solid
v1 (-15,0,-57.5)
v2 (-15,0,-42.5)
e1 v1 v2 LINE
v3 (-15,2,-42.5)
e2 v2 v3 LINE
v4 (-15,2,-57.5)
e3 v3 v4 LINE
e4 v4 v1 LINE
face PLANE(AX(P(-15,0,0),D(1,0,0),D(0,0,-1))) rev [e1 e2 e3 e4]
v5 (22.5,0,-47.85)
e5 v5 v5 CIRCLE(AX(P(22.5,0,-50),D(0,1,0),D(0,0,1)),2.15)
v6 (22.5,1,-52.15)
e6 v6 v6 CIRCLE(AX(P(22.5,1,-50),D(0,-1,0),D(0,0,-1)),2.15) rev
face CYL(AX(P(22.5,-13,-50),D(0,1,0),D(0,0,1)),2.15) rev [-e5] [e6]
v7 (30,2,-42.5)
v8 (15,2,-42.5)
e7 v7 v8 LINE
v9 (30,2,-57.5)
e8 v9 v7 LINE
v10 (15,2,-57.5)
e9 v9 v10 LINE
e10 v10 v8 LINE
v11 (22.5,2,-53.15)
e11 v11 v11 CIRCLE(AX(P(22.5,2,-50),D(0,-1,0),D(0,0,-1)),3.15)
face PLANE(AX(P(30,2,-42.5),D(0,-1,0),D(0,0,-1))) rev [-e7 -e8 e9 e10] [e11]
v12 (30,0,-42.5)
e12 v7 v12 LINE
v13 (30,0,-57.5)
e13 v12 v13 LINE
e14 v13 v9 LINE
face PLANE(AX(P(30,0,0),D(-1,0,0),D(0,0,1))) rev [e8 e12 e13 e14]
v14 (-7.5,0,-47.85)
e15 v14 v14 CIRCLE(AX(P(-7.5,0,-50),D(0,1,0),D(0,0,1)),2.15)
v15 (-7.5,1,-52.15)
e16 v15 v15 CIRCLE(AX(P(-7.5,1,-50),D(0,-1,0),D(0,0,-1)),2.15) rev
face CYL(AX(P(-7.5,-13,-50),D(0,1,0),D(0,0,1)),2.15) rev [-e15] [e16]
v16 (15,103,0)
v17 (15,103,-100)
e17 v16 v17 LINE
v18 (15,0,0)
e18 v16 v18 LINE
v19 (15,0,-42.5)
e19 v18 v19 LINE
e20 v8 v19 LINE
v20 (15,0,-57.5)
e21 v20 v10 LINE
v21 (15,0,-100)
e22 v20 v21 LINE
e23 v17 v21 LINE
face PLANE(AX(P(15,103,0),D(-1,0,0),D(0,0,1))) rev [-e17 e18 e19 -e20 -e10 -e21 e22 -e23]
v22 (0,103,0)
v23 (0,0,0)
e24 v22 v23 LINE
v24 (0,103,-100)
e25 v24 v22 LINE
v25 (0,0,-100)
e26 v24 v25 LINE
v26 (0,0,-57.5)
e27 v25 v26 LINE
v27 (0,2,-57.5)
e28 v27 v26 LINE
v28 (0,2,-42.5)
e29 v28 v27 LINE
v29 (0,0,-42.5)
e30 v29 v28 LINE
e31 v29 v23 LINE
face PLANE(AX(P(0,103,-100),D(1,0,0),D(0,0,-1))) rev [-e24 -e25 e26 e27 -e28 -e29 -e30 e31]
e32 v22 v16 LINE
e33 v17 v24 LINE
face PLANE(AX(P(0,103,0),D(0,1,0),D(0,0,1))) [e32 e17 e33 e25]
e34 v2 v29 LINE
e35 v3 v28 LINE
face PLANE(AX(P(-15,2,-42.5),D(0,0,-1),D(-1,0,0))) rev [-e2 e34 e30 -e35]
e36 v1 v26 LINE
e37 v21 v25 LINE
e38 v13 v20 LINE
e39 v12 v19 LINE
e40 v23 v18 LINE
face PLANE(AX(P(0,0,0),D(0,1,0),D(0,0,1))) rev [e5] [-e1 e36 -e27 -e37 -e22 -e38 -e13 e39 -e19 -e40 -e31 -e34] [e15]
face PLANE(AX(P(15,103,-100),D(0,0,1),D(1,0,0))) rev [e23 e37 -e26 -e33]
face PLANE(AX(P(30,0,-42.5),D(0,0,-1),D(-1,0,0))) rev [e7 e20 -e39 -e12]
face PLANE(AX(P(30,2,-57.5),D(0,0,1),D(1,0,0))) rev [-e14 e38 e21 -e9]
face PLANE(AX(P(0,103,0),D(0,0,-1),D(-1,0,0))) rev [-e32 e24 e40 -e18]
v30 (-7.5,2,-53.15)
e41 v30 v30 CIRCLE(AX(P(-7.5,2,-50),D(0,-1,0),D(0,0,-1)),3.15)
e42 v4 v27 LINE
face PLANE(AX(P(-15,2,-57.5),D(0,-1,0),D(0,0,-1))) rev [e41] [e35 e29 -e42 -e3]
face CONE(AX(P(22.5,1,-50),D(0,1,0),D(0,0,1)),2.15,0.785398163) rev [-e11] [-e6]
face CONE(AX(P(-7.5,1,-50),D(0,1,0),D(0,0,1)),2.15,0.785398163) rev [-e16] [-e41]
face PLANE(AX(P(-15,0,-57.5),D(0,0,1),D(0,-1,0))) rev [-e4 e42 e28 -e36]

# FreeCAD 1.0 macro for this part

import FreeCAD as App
import Part
import Sketcher
from FreeCAD import Vector
Q = App.Units.Quantity


def edges_at(feature, points):
    """Names of the edges that pass closest to the given points."""
    edges = feature.Shape.Edges
    near = lambda p: min(range(len(edges)), key=lambda i: edges[i].distToShape(Part.Vertex(*p))[0])
    return sorted({f"Edge{near(p) + 1}" for p in points})

doc = App.newDocument("Part")
body = doc.addObject("PartDesign::Body", "Body")

# Sketch on XZ plane
sketch1 = doc.addObject("Sketcher::SketchObject", "Sketch")
body.addObject(sketch1)
sketch1.AttachmentSupport = (doc.XZ_Plane, [""])
sketch1.MapMode = "FlatFace"
sketch1.addGeometry([
    Part.LineSegment(Vector(0, -100, 0), Vector(0, 0, 0)),
    Part.LineSegment(Vector(0, 0, 0), Vector(15, 0, 0)),
    Part.LineSegment(Vector(15, 0, 0), Vector(15, -100, 0)),
    Part.LineSegment(Vector(15, -100, 0), Vector(0, -100, 0)),
], False)
sketch1.addConstraint([
    Sketcher.Constraint("Coincident", 0, 2, 1, 1),
    Sketcher.Constraint("Coincident", 1, 2, 2, 1),
    Sketcher.Constraint("Coincident", 2, 2, 3, 1),
    Sketcher.Constraint("Coincident", 3, 2, 0, 1),
    Sketcher.Constraint("Vertical", 0),
    Sketcher.Constraint("Horizontal", 1),
    Sketcher.Constraint("Vertical", 2),
    Sketcher.Constraint("Horizontal", 3),
    Sketcher.Constraint("Coincident", 0, 2, -1, 1),
    Sketcher.Constraint("DistanceX", 1, 1, 1, 2, Q("15 mm")),
    Sketcher.Constraint("DistanceY", 0, 1, 0, 2, Q("100 mm")),
])
pad1 = doc.addObject("PartDesign::Pad", "Pad")
body.addObject(pad1)
pad1.Profile = sketch1
pad1.Length = 103
pad1.Reversed = True

# Sketch on YZ plane
sketch2 = doc.addObject("Sketcher::SketchObject", "Sketch001")
body.addObject(sketch2)
sketch2.AttachmentSupport = (doc.YZ_Plane, [""])
sketch2.MapMode = "FlatFace"
sketch2.addGeometry([
    Part.LineSegment(Vector(2, -57.5, 0), Vector(0, -57.5, 0)),
    Part.LineSegment(Vector(0, -57.5, 0), Vector(0, -42.5, 0)),
    Part.LineSegment(Vector(0, -42.5, 0), Vector(2, -42.5, 0)),
    Part.LineSegment(Vector(2, -42.5, 0), Vector(2, -57.5, 0)),
], False)
sketch2.addConstraint([
    Sketcher.Constraint("Coincident", 0, 2, 1, 1),
    Sketcher.Constraint("Coincident", 1, 2, 2, 1),
    Sketcher.Constraint("Coincident", 2, 2, 3, 1),
    Sketcher.Constraint("Coincident", 3, 2, 0, 1),
    Sketcher.Constraint("Horizontal", 0),
    Sketcher.Constraint("Vertical", 1),
    Sketcher.Constraint("Horizontal", 2),
    Sketcher.Constraint("Vertical", 3),
    Sketcher.Constraint("PointOnObject", 0, 2, -2),
    Sketcher.Constraint("DistanceX", 0, 2, 0, 1, Q("2 mm")),
    Sketcher.Constraint("DistanceY", 1, 1, 1, 2, Q("15 mm")),
    Sketcher.Constraint("DistanceY", 0, 2, -1, 1, Q("57.5 mm")),
])
pad2 = doc.addObject("PartDesign::Pad", "Pad001")
body.addObject(pad2)
pad2.Profile = sketch2
pad2.Length = 15
pad2.Reversed = True

# Sketch on YZ plane
sketch3 = doc.addObject("Sketcher::SketchObject", "Sketch002")
body.addObject(sketch3)
sketch3.AttachmentSupport = (doc.YZ_Plane, [""])
sketch3.MapMode = "FlatFace"
sketch3.AttachmentOffset = App.Placement(Vector(0, 0, 15), App.Rotation())
sketch3.addGeometry([
    Part.LineSegment(Vector(2, -42.5, 0), Vector(0, -42.5, 0)),
    Part.LineSegment(Vector(0, -42.5, 0), Vector(0, -57.5, 0)),
    Part.LineSegment(Vector(0, -57.5, 0), Vector(2, -57.5, 0)),
    Part.LineSegment(Vector(2, -57.5, 0), Vector(2, -42.5, 0)),
], False)
sketch3.addConstraint([
    Sketcher.Constraint("Coincident", 0, 2, 1, 1),
    Sketcher.Constraint("Coincident", 1, 2, 2, 1),
    Sketcher.Constraint("Coincident", 2, 2, 3, 1),
    Sketcher.Constraint("Coincident", 3, 2, 0, 1),
    Sketcher.Constraint("Horizontal", 0),
    Sketcher.Constraint("Vertical", 1),
    Sketcher.Constraint("Horizontal", 2),
    Sketcher.Constraint("Vertical", 3),
    Sketcher.Constraint("PointOnObject", 0, 2, -2),
    Sketcher.Constraint("DistanceX", 0, 2, 0, 1, Q("2 mm")),
    Sketcher.Constraint("DistanceY", 1, 2, 1, 1, Q("15 mm")),
    Sketcher.Constraint("DistanceY", 0, 2, -1, 1, Q("42.5 mm")),
])
pad3 = doc.addObject("PartDesign::Pad", "Pad002")
body.addObject(pad3)
pad3.Profile = sketch3
pad3.Length = 15

# Sketch on XZ plane
sketch4 = doc.addObject("Sketcher::SketchObject", "Sketch003")
body.addObject(sketch4)
sketch4.AttachmentSupport = (doc.XZ_Plane, [""])
sketch4.MapMode = "FlatFace"
sketch4.AttachmentOffset = App.Placement(Vector(0, 0, -2), App.Rotation())
sketch4.addGeometry([
    Part.Circle(Vector(-7.5, -50, 0), Vector(0, 0, 1), 2.15),
    Part.Circle(Vector(22.5, -50, 0), Vector(0, 0, 1), 2.15),
], False)
sketch4.addConstraint([
    Sketcher.Constraint("Equal", 0, 1),
    Sketcher.Constraint("Horizontal", 0, 3, 1, 3),
    Sketcher.Constraint("Diameter", 0, Q("4.3 mm")),
    Sketcher.Constraint("DistanceY", 0, 3, -1, 1, Q("50 mm")),
    Sketcher.Constraint("DistanceX", 0, 3, 1, 3, Q("30 mm")),
    Sketcher.Constraint("DistanceX", 0, 3, -1, 1, Q("7.5 mm")),
])
pocket1 = doc.addObject("PartDesign::Pocket", "Pocket")
body.addObject(pocket1)
pocket1.Profile = sketch4
pocket1.Length = 15
pocket1.Reversed = True
doc.recompute()

chamfer = doc.addObject("PartDesign::Chamfer", "Chamfer")
body.addObject(chamfer)
chamfer.Base = (pocket1, edges_at(pocket1, [(-7.5, 2, -52.15), (22.5, 2, -52.15)]))
chamfer.Size = 1

doc.recompute()
